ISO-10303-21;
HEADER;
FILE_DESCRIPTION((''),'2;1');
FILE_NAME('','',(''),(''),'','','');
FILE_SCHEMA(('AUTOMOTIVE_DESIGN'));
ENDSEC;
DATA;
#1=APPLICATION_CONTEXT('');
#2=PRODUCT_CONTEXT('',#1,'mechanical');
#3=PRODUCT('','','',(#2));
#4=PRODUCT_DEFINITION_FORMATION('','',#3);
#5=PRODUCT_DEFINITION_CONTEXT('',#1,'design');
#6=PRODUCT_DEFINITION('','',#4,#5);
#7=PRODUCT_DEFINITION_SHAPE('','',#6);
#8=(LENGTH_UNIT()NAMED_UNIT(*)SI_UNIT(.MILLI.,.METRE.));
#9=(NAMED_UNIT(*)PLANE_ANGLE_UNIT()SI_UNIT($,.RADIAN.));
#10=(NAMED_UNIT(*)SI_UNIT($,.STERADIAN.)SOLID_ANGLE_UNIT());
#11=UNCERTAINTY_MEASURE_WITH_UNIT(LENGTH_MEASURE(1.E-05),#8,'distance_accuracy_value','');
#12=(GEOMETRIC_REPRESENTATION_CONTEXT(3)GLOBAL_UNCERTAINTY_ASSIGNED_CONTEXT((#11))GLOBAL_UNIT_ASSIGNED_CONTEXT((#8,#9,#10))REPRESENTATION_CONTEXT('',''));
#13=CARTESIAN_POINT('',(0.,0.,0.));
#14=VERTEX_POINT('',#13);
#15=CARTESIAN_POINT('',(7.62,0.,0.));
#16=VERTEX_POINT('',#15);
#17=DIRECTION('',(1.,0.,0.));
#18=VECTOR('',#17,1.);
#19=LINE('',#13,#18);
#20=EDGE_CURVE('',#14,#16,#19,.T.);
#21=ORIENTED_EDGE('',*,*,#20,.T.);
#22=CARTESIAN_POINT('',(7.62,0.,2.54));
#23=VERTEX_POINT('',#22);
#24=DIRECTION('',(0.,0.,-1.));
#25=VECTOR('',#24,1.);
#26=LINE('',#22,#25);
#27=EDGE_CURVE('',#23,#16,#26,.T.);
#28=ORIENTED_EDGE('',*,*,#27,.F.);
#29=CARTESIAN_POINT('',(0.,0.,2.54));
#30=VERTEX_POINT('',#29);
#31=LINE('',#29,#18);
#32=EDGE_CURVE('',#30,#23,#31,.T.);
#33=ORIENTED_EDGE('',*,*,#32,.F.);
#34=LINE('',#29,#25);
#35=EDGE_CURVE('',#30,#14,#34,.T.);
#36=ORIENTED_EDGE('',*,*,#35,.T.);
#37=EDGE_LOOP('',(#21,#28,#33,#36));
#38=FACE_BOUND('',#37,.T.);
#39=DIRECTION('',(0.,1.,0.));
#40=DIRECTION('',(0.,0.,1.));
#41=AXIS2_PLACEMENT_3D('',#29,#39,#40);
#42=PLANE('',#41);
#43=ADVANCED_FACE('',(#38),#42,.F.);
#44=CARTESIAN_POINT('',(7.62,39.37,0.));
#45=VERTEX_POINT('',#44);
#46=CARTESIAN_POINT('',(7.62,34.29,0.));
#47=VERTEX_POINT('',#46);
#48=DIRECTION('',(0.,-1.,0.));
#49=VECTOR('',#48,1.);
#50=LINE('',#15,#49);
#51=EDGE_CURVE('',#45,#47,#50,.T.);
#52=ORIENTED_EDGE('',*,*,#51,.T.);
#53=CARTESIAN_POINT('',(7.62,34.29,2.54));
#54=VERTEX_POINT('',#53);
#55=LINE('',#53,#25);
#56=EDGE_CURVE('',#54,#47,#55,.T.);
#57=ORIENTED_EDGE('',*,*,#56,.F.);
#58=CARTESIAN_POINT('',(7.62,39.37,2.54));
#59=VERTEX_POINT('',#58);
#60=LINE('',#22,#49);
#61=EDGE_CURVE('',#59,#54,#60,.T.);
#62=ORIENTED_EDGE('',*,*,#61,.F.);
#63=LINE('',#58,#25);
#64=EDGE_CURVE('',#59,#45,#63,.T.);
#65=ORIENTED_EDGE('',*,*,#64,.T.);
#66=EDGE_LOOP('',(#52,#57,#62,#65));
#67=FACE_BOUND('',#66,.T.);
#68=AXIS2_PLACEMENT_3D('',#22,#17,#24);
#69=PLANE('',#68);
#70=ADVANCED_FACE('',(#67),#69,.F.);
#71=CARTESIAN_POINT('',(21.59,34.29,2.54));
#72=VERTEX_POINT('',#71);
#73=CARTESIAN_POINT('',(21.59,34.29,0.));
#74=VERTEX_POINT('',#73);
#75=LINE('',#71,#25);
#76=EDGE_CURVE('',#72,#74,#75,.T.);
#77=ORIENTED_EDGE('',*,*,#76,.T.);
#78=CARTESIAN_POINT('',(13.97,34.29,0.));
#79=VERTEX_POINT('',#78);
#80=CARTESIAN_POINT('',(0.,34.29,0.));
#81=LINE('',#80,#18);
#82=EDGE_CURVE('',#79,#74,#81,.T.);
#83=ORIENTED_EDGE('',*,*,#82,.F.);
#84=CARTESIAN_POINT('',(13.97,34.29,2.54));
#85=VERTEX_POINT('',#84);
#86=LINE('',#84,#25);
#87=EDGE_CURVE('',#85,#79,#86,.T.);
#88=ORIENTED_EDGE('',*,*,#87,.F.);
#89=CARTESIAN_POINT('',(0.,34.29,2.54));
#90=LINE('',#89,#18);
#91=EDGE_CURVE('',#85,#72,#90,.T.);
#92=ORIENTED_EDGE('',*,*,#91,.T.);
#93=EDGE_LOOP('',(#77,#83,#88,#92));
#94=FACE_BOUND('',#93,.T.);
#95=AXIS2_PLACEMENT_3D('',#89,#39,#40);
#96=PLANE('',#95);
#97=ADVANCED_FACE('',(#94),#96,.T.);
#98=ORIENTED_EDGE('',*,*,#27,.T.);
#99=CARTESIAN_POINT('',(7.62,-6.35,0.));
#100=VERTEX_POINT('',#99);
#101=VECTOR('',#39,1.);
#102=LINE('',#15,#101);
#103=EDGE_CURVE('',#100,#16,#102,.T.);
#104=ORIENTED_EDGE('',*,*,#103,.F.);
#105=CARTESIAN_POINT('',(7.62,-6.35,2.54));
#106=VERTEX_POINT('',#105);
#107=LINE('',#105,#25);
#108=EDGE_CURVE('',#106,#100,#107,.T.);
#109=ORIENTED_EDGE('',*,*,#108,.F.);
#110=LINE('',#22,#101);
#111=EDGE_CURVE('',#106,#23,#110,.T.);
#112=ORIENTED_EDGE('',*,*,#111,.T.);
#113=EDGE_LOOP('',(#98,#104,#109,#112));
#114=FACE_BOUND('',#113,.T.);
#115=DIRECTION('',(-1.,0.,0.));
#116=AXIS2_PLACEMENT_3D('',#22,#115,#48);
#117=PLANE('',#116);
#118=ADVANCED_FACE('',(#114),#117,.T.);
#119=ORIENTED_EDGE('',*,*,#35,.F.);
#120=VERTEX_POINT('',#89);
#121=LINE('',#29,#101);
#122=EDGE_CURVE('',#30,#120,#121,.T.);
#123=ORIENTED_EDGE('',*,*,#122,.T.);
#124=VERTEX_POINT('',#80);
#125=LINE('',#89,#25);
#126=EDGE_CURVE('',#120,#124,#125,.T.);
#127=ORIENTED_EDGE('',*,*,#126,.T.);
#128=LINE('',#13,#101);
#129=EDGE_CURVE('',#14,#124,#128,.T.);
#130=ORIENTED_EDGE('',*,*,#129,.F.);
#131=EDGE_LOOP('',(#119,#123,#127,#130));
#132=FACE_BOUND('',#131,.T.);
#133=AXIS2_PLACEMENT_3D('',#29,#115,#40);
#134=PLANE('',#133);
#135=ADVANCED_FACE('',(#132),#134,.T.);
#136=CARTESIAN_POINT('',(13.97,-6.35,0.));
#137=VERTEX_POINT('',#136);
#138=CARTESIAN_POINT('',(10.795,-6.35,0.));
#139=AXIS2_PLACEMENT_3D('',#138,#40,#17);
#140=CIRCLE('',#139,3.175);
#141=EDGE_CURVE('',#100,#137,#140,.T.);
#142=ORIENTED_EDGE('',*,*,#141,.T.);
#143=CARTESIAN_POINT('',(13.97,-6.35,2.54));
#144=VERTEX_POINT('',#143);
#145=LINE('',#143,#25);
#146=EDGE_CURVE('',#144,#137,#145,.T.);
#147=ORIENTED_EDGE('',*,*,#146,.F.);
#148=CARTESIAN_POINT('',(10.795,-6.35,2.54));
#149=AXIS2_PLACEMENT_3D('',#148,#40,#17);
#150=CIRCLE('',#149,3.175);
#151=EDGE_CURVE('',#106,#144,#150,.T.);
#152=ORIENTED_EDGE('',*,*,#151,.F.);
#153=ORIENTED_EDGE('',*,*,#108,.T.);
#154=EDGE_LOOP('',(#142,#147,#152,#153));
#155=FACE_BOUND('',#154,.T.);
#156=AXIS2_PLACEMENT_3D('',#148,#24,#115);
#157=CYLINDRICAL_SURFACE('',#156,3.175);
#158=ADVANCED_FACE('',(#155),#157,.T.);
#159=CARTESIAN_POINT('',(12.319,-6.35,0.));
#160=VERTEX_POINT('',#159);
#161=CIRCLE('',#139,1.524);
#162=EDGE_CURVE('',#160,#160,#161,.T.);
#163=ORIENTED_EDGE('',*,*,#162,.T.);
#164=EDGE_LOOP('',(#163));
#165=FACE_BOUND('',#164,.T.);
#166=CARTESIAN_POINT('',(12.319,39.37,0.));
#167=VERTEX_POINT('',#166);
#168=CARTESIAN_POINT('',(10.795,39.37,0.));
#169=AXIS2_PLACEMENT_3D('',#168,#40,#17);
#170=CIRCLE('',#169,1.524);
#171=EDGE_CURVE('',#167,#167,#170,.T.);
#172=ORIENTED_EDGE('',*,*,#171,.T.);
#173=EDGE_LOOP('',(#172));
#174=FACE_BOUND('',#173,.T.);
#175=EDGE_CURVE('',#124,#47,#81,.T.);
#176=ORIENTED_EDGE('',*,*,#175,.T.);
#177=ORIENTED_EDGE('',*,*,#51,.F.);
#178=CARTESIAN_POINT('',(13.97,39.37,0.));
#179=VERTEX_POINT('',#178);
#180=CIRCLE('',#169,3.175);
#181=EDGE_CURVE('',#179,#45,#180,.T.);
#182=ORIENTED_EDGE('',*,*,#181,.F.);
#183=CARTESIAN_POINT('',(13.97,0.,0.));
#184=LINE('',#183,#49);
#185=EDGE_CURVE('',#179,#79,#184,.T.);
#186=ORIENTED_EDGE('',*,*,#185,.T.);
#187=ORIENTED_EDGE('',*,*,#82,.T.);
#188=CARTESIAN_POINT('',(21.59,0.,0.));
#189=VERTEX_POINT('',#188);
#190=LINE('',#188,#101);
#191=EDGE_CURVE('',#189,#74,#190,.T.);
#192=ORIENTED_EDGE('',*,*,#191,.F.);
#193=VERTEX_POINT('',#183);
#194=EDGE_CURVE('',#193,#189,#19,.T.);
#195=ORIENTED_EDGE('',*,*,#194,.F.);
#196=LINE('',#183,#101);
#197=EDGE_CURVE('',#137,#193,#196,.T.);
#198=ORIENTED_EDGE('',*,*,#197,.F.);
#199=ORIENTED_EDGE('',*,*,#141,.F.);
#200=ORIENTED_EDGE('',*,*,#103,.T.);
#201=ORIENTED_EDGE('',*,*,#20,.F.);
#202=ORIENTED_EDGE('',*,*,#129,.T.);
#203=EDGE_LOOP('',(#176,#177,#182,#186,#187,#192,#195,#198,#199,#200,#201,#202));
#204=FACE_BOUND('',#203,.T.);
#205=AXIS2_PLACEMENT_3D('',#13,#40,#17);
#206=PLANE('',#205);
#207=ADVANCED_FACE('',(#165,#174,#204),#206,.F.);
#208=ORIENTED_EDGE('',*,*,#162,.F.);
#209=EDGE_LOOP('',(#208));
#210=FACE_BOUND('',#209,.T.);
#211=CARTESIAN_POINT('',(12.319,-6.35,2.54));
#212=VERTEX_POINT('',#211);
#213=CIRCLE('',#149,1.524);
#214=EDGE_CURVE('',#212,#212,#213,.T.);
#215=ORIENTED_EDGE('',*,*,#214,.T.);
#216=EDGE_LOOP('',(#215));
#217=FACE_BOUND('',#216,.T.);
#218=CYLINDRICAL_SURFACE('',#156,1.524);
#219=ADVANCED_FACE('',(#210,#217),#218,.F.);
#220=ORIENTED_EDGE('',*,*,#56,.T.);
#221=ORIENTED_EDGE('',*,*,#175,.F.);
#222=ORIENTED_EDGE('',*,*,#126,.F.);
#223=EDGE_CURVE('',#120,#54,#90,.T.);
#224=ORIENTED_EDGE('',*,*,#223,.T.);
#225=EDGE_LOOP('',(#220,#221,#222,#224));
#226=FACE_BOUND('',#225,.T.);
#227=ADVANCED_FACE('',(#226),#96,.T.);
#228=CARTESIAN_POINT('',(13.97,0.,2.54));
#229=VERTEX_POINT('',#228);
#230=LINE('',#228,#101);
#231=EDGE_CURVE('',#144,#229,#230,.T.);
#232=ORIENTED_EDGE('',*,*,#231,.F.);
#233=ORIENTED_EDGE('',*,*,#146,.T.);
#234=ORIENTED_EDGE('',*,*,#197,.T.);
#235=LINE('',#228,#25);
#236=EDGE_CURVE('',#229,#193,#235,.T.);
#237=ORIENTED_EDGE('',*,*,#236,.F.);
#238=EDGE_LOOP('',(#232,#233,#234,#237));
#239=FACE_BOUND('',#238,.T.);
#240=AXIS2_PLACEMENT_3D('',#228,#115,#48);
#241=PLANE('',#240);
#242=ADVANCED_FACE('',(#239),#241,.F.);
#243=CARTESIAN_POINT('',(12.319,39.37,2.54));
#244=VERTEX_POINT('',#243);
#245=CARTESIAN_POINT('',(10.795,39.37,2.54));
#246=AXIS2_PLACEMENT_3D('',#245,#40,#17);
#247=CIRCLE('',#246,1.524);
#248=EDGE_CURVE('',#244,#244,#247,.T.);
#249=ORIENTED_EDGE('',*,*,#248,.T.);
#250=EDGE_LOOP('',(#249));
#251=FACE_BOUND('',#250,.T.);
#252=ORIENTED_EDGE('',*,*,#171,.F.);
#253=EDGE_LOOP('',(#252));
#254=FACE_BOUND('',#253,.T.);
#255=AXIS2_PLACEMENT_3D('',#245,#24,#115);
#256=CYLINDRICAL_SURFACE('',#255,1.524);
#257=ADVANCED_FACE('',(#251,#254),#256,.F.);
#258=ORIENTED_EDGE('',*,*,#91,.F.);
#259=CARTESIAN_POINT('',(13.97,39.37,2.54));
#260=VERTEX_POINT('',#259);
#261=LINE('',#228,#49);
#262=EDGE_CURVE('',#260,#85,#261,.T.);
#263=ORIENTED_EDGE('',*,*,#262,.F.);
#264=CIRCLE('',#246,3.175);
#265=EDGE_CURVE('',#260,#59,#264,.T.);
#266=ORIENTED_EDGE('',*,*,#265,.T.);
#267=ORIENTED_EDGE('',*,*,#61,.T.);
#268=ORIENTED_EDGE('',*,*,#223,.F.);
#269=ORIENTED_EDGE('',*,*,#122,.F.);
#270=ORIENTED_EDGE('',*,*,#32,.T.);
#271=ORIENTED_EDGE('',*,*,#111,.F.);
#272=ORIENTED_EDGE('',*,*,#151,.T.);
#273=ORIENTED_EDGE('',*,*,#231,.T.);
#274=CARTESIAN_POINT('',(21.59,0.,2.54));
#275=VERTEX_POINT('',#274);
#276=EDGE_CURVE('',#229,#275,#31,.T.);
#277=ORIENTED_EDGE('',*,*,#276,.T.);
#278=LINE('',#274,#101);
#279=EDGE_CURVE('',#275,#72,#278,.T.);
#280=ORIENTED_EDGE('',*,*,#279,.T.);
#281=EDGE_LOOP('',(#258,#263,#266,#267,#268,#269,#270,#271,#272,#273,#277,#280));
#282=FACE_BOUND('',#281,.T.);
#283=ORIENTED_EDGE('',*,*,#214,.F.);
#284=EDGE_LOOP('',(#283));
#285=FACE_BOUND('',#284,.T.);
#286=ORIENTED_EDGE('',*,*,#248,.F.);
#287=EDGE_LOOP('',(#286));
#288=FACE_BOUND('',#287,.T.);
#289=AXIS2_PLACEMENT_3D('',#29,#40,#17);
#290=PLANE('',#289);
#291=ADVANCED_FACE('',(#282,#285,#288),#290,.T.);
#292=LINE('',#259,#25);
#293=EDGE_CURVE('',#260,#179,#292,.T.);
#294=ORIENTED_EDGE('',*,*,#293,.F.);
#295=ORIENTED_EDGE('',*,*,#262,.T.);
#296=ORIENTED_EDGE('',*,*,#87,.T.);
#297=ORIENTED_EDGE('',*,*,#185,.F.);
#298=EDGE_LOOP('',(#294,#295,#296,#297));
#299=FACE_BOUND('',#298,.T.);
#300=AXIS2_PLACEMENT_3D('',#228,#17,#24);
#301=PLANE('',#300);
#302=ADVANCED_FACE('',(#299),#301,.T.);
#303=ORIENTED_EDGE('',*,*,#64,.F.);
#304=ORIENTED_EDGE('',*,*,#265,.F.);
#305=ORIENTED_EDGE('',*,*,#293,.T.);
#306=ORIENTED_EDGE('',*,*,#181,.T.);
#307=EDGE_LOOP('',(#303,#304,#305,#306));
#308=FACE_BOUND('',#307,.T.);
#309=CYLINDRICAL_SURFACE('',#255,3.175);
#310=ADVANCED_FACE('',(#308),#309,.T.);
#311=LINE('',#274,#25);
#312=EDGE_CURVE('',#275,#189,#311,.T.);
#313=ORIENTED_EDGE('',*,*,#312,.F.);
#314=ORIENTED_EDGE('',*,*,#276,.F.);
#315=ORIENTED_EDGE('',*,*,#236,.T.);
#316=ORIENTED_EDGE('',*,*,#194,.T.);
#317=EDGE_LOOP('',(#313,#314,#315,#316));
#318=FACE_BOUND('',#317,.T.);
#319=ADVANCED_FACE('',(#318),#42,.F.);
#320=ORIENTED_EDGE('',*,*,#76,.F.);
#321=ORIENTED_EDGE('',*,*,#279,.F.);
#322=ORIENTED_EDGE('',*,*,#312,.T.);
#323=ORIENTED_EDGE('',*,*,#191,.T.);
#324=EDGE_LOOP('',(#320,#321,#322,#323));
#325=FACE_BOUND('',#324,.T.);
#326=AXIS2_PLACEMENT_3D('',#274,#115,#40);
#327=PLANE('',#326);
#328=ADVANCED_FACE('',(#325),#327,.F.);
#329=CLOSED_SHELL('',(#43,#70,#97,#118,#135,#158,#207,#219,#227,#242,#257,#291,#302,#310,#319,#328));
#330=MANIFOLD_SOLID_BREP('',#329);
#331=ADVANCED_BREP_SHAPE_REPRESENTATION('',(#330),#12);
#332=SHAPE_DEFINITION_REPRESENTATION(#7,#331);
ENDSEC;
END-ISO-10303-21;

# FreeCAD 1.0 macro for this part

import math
import FreeCAD as App
import Part
import Sketcher
from FreeCAD import Vector
Q = App.Units.Quantity

doc = App.newDocument("Part")
body = doc.addObject("PartDesign::Body", "Body")

# Sketch on XY plane
sketch1 = body.newObject("Sketcher::SketchObject", "Sketch")
sketch1.AttachmentSupport = (doc.getObject("XY_Plane"), [""])
sketch1.MapMode = "FlatFace"
sketch1.addGeometry(Part.ArcOfCircle(Part.Circle(Vector(10.8, 39.4, 0), Vector(0, 0, 1), 3.2), math.radians(0), math.radians(180)), False)
sketch1.addGeometry(Part.LineSegment(Vector(7.6, 39.4, 0), Vector(7.6, 34.3, 0)), False)
sketch1.addGeometry(Part.LineSegment(Vector(7.6, 34.3, 0), Vector(0, 34.3, 0)), False)
sketch1.addGeometry(Part.LineSegment(Vector(0, 34.3, 0), Vector(0, 0, 0)), False)
sketch1.addGeometry(Part.LineSegment(Vector(0, 0, 0), Vector(7.6, 0, 0)), False)
sketch1.addGeometry(Part.LineSegment(Vector(7.6, 0, 0), Vector(7.6, -6.3, 0)), False)
sketch1.addGeometry(Part.ArcOfCircle(Part.Circle(Vector(10.8, -6.3, 0), Vector(0, 0, 1), 3.2), math.radians(180), math.radians(360)), False)
sketch1.addGeometry(Part.LineSegment(Vector(14, -6.3, 0), Vector(14, 0, 0)), False)
sketch1.addGeometry(Part.LineSegment(Vector(14, 0, 0), Vector(21.6, 0, 0)), False)
sketch1.addGeometry(Part.LineSegment(Vector(21.6, 0, 0), Vector(21.6, 34.3, 0)), False)
sketch1.addGeometry(Part.LineSegment(Vector(21.6, 34.3, 0), Vector(14, 34.3, 0)), False)
sketch1.addGeometry(Part.LineSegment(Vector(14, 34.3, 0), Vector(14, 39.4, 0)), False)
sketch1.addGeometry(Part.Circle(Vector(10.8, 39.4, 0), Vector(0, 0, 1), 1.5), False)
sketch1.addGeometry(Part.Circle(Vector(10.8, -6.3, 0), Vector(0, 0, 1), 1.5), False)
sketch1.addConstraint(Sketcher.Constraint("Tangent", 0, 2, 1, 1))
sketch1.addConstraint(Sketcher.Constraint("Coincident", 1, 2, 2, 1))
sketch1.addConstraint(Sketcher.Constraint("Coincident", 2, 2, 3, 1))
sketch1.addConstraint(Sketcher.Constraint("Coincident", 3, 2, 4, 1))
sketch1.addConstraint(Sketcher.Constraint("Coincident", 4, 2, 5, 1))
sketch1.addConstraint(Sketcher.Constraint("Tangent", 5, 2, 6, 1))
sketch1.addConstraint(Sketcher.Constraint("Tangent", 6, 2, 7, 1))
sketch1.addConstraint(Sketcher.Constraint("Coincident", 7, 2, 8, 1))
sketch1.addConstraint(Sketcher.Constraint("Coincident", 8, 2, 9, 1))
sketch1.addConstraint(Sketcher.Constraint("Coincident", 9, 2, 10, 1))
sketch1.addConstraint(Sketcher.Constraint("Coincident", 10, 2, 11, 1))
sketch1.addConstraint(Sketcher.Constraint("Tangent", 11, 2, 0, 1))
sketch1.addConstraint(Sketcher.Constraint("Vertical", 1))
sketch1.addConstraint(Sketcher.Constraint("Horizontal", 2))
sketch1.addConstraint(Sketcher.Constraint("Vertical", 3))
sketch1.addConstraint(Sketcher.Constraint("Horizontal", 4))
sketch1.addConstraint(Sketcher.Constraint("Vertical", 5))
sketch1.addConstraint(Sketcher.Constraint("Vertical", 7))
sketch1.addConstraint(Sketcher.Constraint("Horizontal", 8))
sketch1.addConstraint(Sketcher.Constraint("Vertical", 9))
sketch1.addConstraint(Sketcher.Constraint("Horizontal", 10))
sketch1.addConstraint(Sketcher.Constraint("Vertical", 11))
sketch1.addConstraint(Sketcher.Constraint("Coincident", 3, 2, -1, 1))
sketch1.addConstraint(Sketcher.Constraint("Coincident", 12, 3, 0, 3))
sketch1.addConstraint(Sketcher.Constraint("Coincident", 13, 3, 6, 3))
sketch1.addConstraint(Sketcher.Constraint("Equal", 0, 6))
sketch1.addConstraint(Sketcher.Constraint("Equal", 12, 13))
sketch1.addConstraint(Sketcher.Constraint("PointOnObject", 7, 2, -1))
sketch1.addConstraint(Sketcher.Constraint("Horizontal", 2, 2, 9, 2))
sketch1.addConstraint(Sketcher.Constraint("Vertical", 0, 3, 6, 3))
sketch1.addConstraint(Sketcher.Constraint("Equal", 4, 8))
sketch1.addConstraint(Sketcher.Constraint("Diameter", 12, Q("0.12 in")))
sketch1.addConstraint(Sketcher.Constraint("DistanceX", 2, 2, 2, 1, Q("0.3 in")))
sketch1.addConstraint(Sketcher.Constraint("DistanceY", 1, 2, 1, 1, Q("0.2 in")))
sketch1.addConstraint(Sketcher.Constraint("Radius", 0, Q("0.125 in")))
sketch1.addConstraint(Sketcher.Constraint("DistanceY", 3, 2, 3, 1, Q("1.35 in")))
sketch1.addConstraint(Sketcher.Constraint("DistanceY", 5, 2, 5, 1, Q("0.25 in")))
pad1 = body.newObject("PartDesign::Pad", "Pad")
pad1.Profile = sketch1
pad1.Length = Q("0.1 in")

doc.recompute()
